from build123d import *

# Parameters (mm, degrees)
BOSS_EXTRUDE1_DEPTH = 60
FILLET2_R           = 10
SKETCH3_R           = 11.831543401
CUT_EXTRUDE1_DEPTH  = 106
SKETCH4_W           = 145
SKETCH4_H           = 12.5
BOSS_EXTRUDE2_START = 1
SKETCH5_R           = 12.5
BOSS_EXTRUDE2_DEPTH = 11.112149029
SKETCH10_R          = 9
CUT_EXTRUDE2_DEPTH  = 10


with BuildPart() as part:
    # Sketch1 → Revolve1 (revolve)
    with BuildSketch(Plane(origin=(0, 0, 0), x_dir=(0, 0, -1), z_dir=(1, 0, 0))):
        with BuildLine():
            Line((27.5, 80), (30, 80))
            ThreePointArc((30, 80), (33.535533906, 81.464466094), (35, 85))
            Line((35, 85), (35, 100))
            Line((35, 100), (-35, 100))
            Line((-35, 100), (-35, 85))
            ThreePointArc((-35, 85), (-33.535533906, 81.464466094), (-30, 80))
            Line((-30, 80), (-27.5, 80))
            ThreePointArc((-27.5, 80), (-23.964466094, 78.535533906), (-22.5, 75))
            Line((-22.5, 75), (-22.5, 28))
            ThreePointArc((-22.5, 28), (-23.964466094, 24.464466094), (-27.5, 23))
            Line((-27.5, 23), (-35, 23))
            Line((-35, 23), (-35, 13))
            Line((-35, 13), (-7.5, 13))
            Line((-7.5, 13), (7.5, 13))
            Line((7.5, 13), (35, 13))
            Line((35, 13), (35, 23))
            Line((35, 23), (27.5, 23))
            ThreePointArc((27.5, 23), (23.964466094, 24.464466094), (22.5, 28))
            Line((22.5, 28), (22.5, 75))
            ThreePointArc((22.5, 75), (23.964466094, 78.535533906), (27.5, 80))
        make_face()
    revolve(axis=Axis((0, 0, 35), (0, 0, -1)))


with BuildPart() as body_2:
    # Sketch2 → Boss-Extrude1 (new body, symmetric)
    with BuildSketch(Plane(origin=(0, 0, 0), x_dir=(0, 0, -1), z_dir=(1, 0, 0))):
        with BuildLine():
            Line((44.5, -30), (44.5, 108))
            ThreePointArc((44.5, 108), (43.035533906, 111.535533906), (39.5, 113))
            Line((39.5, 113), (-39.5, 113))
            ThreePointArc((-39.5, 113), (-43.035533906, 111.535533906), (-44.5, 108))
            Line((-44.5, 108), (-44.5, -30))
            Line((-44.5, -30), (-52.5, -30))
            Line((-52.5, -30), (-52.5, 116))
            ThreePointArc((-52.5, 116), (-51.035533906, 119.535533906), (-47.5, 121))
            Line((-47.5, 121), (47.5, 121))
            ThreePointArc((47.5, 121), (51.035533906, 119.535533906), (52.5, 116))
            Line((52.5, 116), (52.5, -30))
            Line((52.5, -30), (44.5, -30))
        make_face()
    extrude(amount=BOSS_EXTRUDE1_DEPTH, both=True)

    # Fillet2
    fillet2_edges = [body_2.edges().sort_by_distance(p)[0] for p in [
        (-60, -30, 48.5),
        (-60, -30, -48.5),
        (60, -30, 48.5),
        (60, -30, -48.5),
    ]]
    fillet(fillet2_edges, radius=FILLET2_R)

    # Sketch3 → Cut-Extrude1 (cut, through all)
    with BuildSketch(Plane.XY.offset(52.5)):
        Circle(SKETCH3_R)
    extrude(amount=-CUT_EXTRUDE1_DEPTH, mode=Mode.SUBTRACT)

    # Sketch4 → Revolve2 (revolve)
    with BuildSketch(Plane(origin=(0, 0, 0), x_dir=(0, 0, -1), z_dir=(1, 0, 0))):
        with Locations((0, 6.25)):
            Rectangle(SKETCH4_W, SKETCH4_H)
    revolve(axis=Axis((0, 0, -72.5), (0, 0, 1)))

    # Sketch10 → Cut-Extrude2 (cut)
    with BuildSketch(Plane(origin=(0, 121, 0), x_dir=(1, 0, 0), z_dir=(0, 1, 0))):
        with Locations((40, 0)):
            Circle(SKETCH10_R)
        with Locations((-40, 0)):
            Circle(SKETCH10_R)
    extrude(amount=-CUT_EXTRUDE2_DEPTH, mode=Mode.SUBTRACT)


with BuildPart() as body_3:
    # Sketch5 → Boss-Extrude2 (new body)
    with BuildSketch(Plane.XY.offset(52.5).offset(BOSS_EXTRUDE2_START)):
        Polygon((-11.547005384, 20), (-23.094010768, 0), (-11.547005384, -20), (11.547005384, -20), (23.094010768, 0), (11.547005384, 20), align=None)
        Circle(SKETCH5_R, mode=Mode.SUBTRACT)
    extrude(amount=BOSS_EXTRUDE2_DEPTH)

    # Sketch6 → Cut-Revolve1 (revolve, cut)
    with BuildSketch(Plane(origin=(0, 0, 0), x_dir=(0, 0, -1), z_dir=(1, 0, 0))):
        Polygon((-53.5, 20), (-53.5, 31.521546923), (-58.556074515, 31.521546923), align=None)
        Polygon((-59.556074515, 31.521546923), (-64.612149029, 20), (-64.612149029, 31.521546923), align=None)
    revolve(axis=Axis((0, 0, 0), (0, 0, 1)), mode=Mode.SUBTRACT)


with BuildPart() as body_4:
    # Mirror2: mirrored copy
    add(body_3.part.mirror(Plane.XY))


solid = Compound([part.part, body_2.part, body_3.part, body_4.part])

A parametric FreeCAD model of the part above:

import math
import FreeCAD as App
import Part
import Sketcher
from FreeCAD import Vector
Q = App.Units.Quantity


def edges_at(feature, points):
    """Names of the edges that pass closest to the given points."""
    edges = feature.Shape.Edges
    near = lambda p: min(range(len(edges)), key=lambda i: edges[i].distToShape(Part.Vertex(*p))[0])
    return sorted({f"Edge{near(p) + 1}" for p in points})

doc = App.newDocument("Part")
params = doc.addObject("Spreadsheet::Sheet", "Params")
for row, (alias, value) in enumerate([
    ("sketch1_radius", "5 mm"),
    ("sketch1_width", "15 mm"),
    ("sketch1_width2", "47 mm"),
    ("sketch1_width3", "10 mm"),
    ("sketch1_height", "70 mm"),
    ("revolution_angle", "360 deg"),
    ("sketch2_radius", "5 mm"),
    ("sketch2_width", "138 mm"),
    ("sketch2_width2", "146 mm"),
    ("sketch2_height", "8 mm"),
    ("sketch2_height2", "95 mm"),
    ("pad1_length", "120 mm"),
    ("fillet_radius", "10 mm"),
    ("sketch4_height", "145 mm"),
    ("sketch4_width", "12.5 mm"),
    ("revolution2_angle", "360 deg"),
    ("sketch5_diameter", "18 mm"),
    ("pocket2_length", "10 mm"),
    ("sketch6_diameter", "25 mm"),
    ("pad2_length", "11.112149 mm"),
    ("groove_angle", "360 deg"),
], start=1):
    params.set(f"A{row}", alias)
    params.set(f"B{row}", "=" + value)
    params.setAlias(f"B{row}", alias)

body = doc.addObject("PartDesign::Body", "Body")

# Sketch on YZ plane
sketch1 = doc.addObject("Sketcher::SketchObject", "Sketch")
body.addObject(sketch1)
sketch1.AttachmentSupport = (doc.YZ_Plane, [""])
sketch1.MapMode = "FlatFace"
sketch1.addGeometry(Part.LineSegment(Vector(80, -27.5, 0), Vector(80, -30, 0)), False)
sketch1.addGeometry(Part.ArcOfCircle(Part.Circle(Vector(85, -30, 0), Vector(0, 0, 1), 5), math.radians(180), math.radians(270)), False)
sketch1.addGeometry(Part.LineSegment(Vector(85, -35, 0), Vector(100, -35, 0)), False)
sketch1.addGeometry(Part.LineSegment(Vector(100, -35, 0), Vector(100, 35, 0)), False)
sketch1.addGeometry(Part.LineSegment(Vector(100, 35, 0), Vector(85, 35, 0)), False)
sketch1.addGeometry(Part.ArcOfCircle(Part.Circle(Vector(85, 30, 0), Vector(0, 0, 1), 5), math.radians(90), math.radians(180)), False)
sketch1.addGeometry(Part.LineSegment(Vector(80, 30, 0), Vector(80, 27.5, 0)), False)
sketch1.addGeometry(Part.ArcOfCircle(Part.Circle(Vector(75, 27.5, 0), Vector(0, 0, 1), 5), math.radians(-90), math.radians(0)), False)
sketch1.addGeometry(Part.LineSegment(Vector(75, 22.5, 0), Vector(28, 22.5, 0)), False)
sketch1.addGeometry(Part.ArcOfCircle(Part.Circle(Vector(28, 27.5, 0), Vector(0, 0, 1), 5), math.radians(180), math.radians(270)), False)
sketch1.addGeometry(Part.LineSegment(Vector(23, 27.5, 0), Vector(23, 35, 0)), False)
sketch1.addGeometry(Part.LineSegment(Vector(23, 35, 0), Vector(13, 35, 0)), False)
sketch1.addGeometry(Part.LineSegment(Vector(13, 35, 0), Vector(13, -35, 0)), False)
sketch1.addGeometry(Part.LineSegment(Vector(13, -35, 0), Vector(23, -35, 0)), False)
sketch1.addGeometry(Part.LineSegment(Vector(23, -35, 0), Vector(23, -27.5, 0)), False)
sketch1.addGeometry(Part.ArcOfCircle(Part.Circle(Vector(28, -27.5, 0), Vector(0, 0, 1), 5), math.radians(90), math.radians(180)), False)
sketch1.addGeometry(Part.LineSegment(Vector(28, -22.5, 0), Vector(75, -22.5, 0)), False)
sketch1.addGeometry(Part.ArcOfCircle(Part.Circle(Vector(75, -27.5, 0), Vector(0, 0, 1), 5), math.radians(0), math.radians(90)), False)
sketch1.addConstraint(Sketcher.Constraint("Tangent", 0, 2, 1, 1))
sketch1.addConstraint(Sketcher.Constraint("Tangent", 1, 2, 2, 1))
sketch1.addConstraint(Sketcher.Constraint("Coincident", 2, 2, 3, 1))
sketch1.addConstraint(Sketcher.Constraint("Coincident", 3, 2, 4, 1))
sketch1.addConstraint(Sketcher.Constraint("Tangent", 4, 2, 5, 1))
sketch1.addConstraint(Sketcher.Constraint("Tangent", 5, 2, 6, 1))
sketch1.addConstraint(Sketcher.Constraint("Tangent", 6, 2, 7, 2))
sketch1.addConstraint(Sketcher.Constraint("Tangent", 7, 1, 8, 1))
sketch1.addConstraint(Sketcher.Constraint("Tangent", 8, 2, 9, 2))
sketch1.addConstraint(Sketcher.Constraint("Tangent", 9, 1, 10, 1))
sketch1.addConstraint(Sketcher.Constraint("Coincident", 10, 2, 11, 1))
sketch1.addConstraint(Sketcher.Constraint("Coincident", 11, 2, 12, 1))
sketch1.addConstraint(Sketcher.Constraint("Coincident", 12, 2, 13, 1))
sketch1.addConstraint(Sketcher.Constraint("Coincident", 13, 2, 14, 1))
sketch1.addConstraint(Sketcher.Constraint("Tangent", 14, 2, 15, 2))
sketch1.addConstraint(Sketcher.Constraint("Tangent", 15, 1, 16, 1))
sketch1.addConstraint(Sketcher.Constraint("Tangent", 16, 2, 17, 2))
sketch1.addConstraint(Sketcher.Constraint("Tangent", 17, 1, 0, 1))
sketch1.addConstraint(Sketcher.Constraint("Vertical", 0))
sketch1.addConstraint(Sketcher.Constraint("Horizontal", 2))
sketch1.addConstraint(Sketcher.Constraint("Vertical", 3))
sketch1.addConstraint(Sketcher.Constraint("Horizontal", 4))
sketch1.addConstraint(Sketcher.Constraint("Vertical", 6))
sketch1.addConstraint(Sketcher.Constraint("Horizontal", 8))
sketch1.addConstraint(Sketcher.Constraint("Vertical", 10))
sketch1.addConstraint(Sketcher.Constraint("Horizontal", 11))
sketch1.addConstraint(Sketcher.Constraint("Vertical", 12))
sketch1.addConstraint(Sketcher.Constraint("Horizontal", 13))
sketch1.addConstraint(Sketcher.Constraint("Vertical", 14))
sketch1.addConstraint(Sketcher.Constraint("Horizontal", 16))
sketch1.addConstraint(Sketcher.Constraint("Equal", 1, 5))
sketch1.addConstraint(Sketcher.Constraint("Equal", 5, 7))
sketch1.addConstraint(Sketcher.Constraint("Equal", 7, 9))
sketch1.addConstraint(Sketcher.Constraint("Equal", 9, 15))
sketch1.addConstraint(Sketcher.Constraint("Equal", 15, 17))
sketch1.addConstraint(Sketcher.Constraint("Symmetric", 1, 3, 5, 3, -1))
sketch1.addConstraint(Sketcher.Constraint("Symmetric", 9, 3, 15, 3, -1))
sketch1.addConstraint(Sketcher.Constraint("Horizontal", 4, 2, 10, 2))
sketch1.addConstraint(Sketcher.Constraint("Horizontal", 2, 2, 12, 2))
sketch1.addConstraint(Sketcher.Constraint("Radius", 1, Q("5 mm")))
sketch1.addConstraint(Sketcher.Constraint("DistanceX", 2, 1, 2, 2, Q("15 mm")))
sketch1.addConstraint(Sketcher.Constraint("DistanceX", 8, 2, 8, 1, Q("47 mm")))
sketch1.addConstraint(Sketcher.Constraint("DistanceX", 11, 2, 11, 1, Q("10 mm")))
sketch1.addConstraint(Sketcher.Constraint("DistanceY", 3, 1, 3, 2, Q("70 mm")))
sketch1.addConstraint(Sketcher.Constraint("DistanceY", 0, 2, 0, 1, Q("2.5 mm")))
sketch1.addConstraint(Sketcher.Constraint("DistanceX", -1, 1, 1, 3, Q("85 mm")))
sketch1.setExpression("Constraints[39]", "Params.sketch1_radius")
sketch1.setExpression("Constraints[40]", "Params.sketch1_width")
sketch1.setExpression("Constraints[41]", "Params.sketch1_width2")
sketch1.setExpression("Constraints[42]", "Params.sketch1_width3")
sketch1.setExpression("Constraints[43]", "Params.sketch1_height")
revolution = doc.addObject("PartDesign::Revolution", "Revolution")
body.addObject(revolution)
revolution.Profile = sketch1
revolution.ReferenceAxis = (sketch1, ["V_Axis"])
revolution.setExpression("Angle", "Params.revolution_angle")
body2 = doc.addObject("PartDesign::Body", "Body001")

# Sketch on YZ plane
sketch2 = doc.addObject("Sketcher::SketchObject", "Sketch001")
body2.addObject(sketch2)
sketch2.AttachmentSupport = (doc.getObject("YZ_Plane001"), [""])
sketch2.MapMode = "FlatFace"
sketch2.addGeometry(Part.LineSegment(Vector(108, -44, 0), Vector(-30, -44, 0)), False)
sketch2.addGeometry(Part.LineSegment(Vector(-30, -44, 0), Vector(-30, -52, 0)), False)
sketch2.addGeometry(Part.LineSegment(Vector(-30, -52, 0), Vector(116, -52, 0)), False)
sketch2.addGeometry(Part.ArcOfCircle(Part.Circle(Vector(116, -48, 0), Vector(0, 0, 1), 5), math.radians(-90), math.radians(0)), False)
sketch2.addGeometry(Part.LineSegment(Vector(121, -48, 0), Vector(121, 48, 0)), False)
sketch2.addGeometry(Part.ArcOfCircle(Part.Circle(Vector(116, 48, 0), Vector(0, 0, 1), 5), math.radians(0), math.radians(90)), False)
sketch2.addGeometry(Part.LineSegment(Vector(116, 52, 0), Vector(-30, 52, 0)), False)
sketch2.addGeometry(Part.LineSegment(Vector(-30, 52, 0), Vector(-30, 44, 0)), False)
sketch2.addGeometry(Part.LineSegment(Vector(-30, 44, 0), Vector(108, 44, 0)), False)
sketch2.addGeometry(Part.ArcOfCircle(Part.Circle(Vector(108, 40, 0), Vector(0, 0, 1), 5), math.radians(0), math.radians(90)), False)
sketch2.addGeometry(Part.LineSegment(Vector(113, 40, 0), Vector(113, -40, 0)), False)
sketch2.addGeometry(Part.ArcOfCircle(Part.Circle(Vector(108, -40, 0), Vector(0, 0, 1), 5), math.radians(-90), math.radians(0)), False)
sketch2.addConstraint(Sketcher.Constraint("Coincident", 0, 2, 1, 1))
sketch2.addConstraint(Sketcher.Constraint("Coincident", 1, 2, 2, 1))
sketch2.addConstraint(Sketcher.Constraint("Tangent", 2, 2, 3, 1))
sketch2.addConstraint(Sketcher.Constraint("Tangent", 3, 2, 4, 1))
sketch2.addConstraint(Sketcher.Constraint("Tangent", 4, 2, 5, 1))
sketch2.addConstraint(Sketcher.Constraint("Tangent", 5, 2, 6, 1))
sketch2.addConstraint(Sketcher.Constraint("Coincident", 6, 2, 7, 1))
sketch2.addConstraint(Sketcher.Constraint("Coincident", 7, 2, 8, 1))
sketch2.addConstraint(Sketcher.Constraint("Tangent", 8, 2, 9, 2))
sketch2.addConstraint(Sketcher.Constraint("Tangent", 9, 1, 10, 1))
sketch2.addConstraint(Sketcher.Constraint("Tangent", 10, 2, 11, 2))
sketch2.addConstraint(Sketcher.Constraint("Tangent", 11, 1, 0, 1))
sketch2.addConstraint(Sketcher.Constraint("Horizontal", 0))
sketch2.addConstraint(Sketcher.Constraint("Vertical", 1))
sketch2.addConstraint(Sketcher.Constraint("Horizontal", 2))
sketch2.addConstraint(Sketcher.Constraint("Vertical", 4))
sketch2.addConstraint(Sketcher.Constraint("Horizontal", 6))
sketch2.addConstraint(Sketcher.Constraint("Vertical", 7))
sketch2.addConstraint(Sketcher.Constraint("Horizontal", 8))
sketch2.addConstraint(Sketcher.Constraint("Vertical", 10))
sketch2.addConstraint(Sketcher.Constraint("Equal", 3, 5))
sketch2.addConstraint(Sketcher.Constraint("Equal", 5, 9))
sketch2.addConstraint(Sketcher.Constraint("Equal", 9, 11))
sketch2.addConstraint(Sketcher.Constraint("Symmetric", 1, 2, 6, 2, -1))
sketch2.addConstraint(Sketcher.Constraint("Equal", 1, 7))
sketch2.addConstraint(Sketcher.Constraint("Radius", 3, Q("5 mm")))
sketch2.addConstraint(Sketcher.Constraint("DistanceX", 0, 2, 0, 1, Q("138 mm")))
sketch2.addConstraint(Sketcher.Constraint("DistanceX", 2, 1, 2, 2, Q("146 mm")))
sketch2.addConstraint(Sketcher.Constraint("DistanceY", 1, 2, 1, 1, Q("8 mm")))
sketch2.addConstraint(Sketcher.Constraint("DistanceY", 4, 1, 4, 2, Q("95 mm")))
sketch2.addConstraint(Sketcher.Constraint("DistanceX", -1, 1, 3, 3, Q("116 mm")))
sketch2.setExpression("Constraints[25]", "Params.sketch2_radius")
sketch2.setExpression("Constraints[26]", "Params.sketch2_width")
sketch2.setExpression("Constraints[27]", "Params.sketch2_width2")
sketch2.setExpression("Constraints[28]", "Params.sketch2_height")
sketch2.setExpression("Constraints[29]", "Params.sketch2_height2")
pad1 = doc.addObject("PartDesign::Pad", "Pad")
body2.addObject(pad1)
pad1.Profile = sketch2
pad1.setExpression("Length", "Params.pad1_length")
pad1.Midplane = True
doc.recompute()

fillet = doc.addObject("PartDesign::Fillet", "Fillet")
body2.addObject(fillet)
fillet.Base = (pad1, edges_at(pad1, [
    (-60, -30, 48.5),
    (-60, -30, -48.5),
    (60, -30, 48.5),
    (60, -30, -48.5),
]))
fillet.setExpression("Radius", "Params.fillet_radius")

# Sketch on XY plane
sketch3 = doc.addObject("Sketcher::SketchObject", "Sketch002")
body2.addObject(sketch3)
sketch3.AttachmentSupport = (doc.getObject("XY_Plane001"), [""])
sketch3.MapMode = "FlatFace"
sketch3.AttachmentOffset = App.Placement(Vector(0, 0, 52.5), App.Rotation())
sketch3.addGeometry(Part.Circle(Vector(0, 0, 0), Vector(0, 0, 1), 12), False)
sketch3.addConstraint(Sketcher.Constraint("Coincident", 0, 3, -1, 1))
sketch3.addConstraint(Sketcher.Constraint("Diameter", 0, Q("23.663087 mm")))
pocket1 = doc.addObject("PartDesign::Pocket", "Pocket")
body2.addObject(pocket1)
pocket1.Profile = sketch3
pocket1.Type = "ThroughAll"

# Sketch on YZ plane
sketch4 = doc.addObject("Sketcher::SketchObject", "Sketch003")
body2.addObject(sketch4)
sketch4.AttachmentSupport = (doc.getObject("YZ_Plane001"), [""])
sketch4.MapMode = "FlatFace"
sketch4.addGeometry(Part.LineSegment(Vector(12, 72, 0), Vector(0, 72, 0)), False)
sketch4.addGeometry(Part.LineSegment(Vector(0, 72, 0), Vector(0, -72, 0)), False)
sketch4.addGeometry(Part.LineSegment(Vector(0, -72, 0), Vector(12, -72, 0)), False)
sketch4.addGeometry(Part.LineSegment(Vector(12, -72, 0), Vector(12, 72, 0)), False)
sketch4.addConstraint(Sketcher.Constraint("Coincident", 0, 2, 1, 1))
sketch4.addConstraint(Sketcher.Constraint("Coincident", 1, 2, 2, 1))
sketch4.addConstraint(Sketcher.Constraint("Coincident", 2, 2, 3, 1))
sketch4.addConstraint(Sketcher.Constraint("Coincident", 3, 2, 0, 1))
sketch4.addConstraint(Sketcher.Constraint("Horizontal", 0))
sketch4.addConstraint(Sketcher.Constraint("Vertical", 1))
sketch4.addConstraint(Sketcher.Constraint("Horizontal", 2))
sketch4.addConstraint(Sketcher.Constraint("Vertical", 3))
sketch4.addConstraint(Sketcher.Constraint("Symmetric", 0, 2, 1, 2, -1, 1))
sketch4.addConstraint(Sketcher.Constraint("DistanceY", 1, 2, 1, 1, Q("145 mm")))
sketch4.addConstraint(Sketcher.Constraint("DistanceX", 0, 2, 0, 1, Q("12.5 mm")))
sketch4.setExpression("Constraints[9]", "Params.sketch4_height")
sketch4.setExpression("Constraints[10]", "Params.sketch4_width")
revolution2 = doc.addObject("PartDesign::Revolution", "Revolution001")
body2.addObject(revolution2)
revolution2.Profile = sketch4
revolution2.ReferenceAxis = (sketch4, ["V_Axis"])
revolution2.setExpression("Angle", "Params.revolution2_angle")

# Sketch on XZ plane
sketch5 = doc.addObject("Sketcher::SketchObject", "Sketch004")
body2.addObject(sketch5)
sketch5.AttachmentSupport = (doc.getObject("XZ_Plane001"), [""])
sketch5.MapMode = "FlatFace"
sketch5.AttachmentOffset = App.Placement(Vector(0, 0, -121), App.Rotation())
sketch5.addGeometry(Part.Circle(Vector(40, 0, 0), Vector(0, 0, 1), 9), False)
sketch5.addGeometry(Part.Circle(Vector(-40, 0, 0), Vector(0, 0, 1), 9), False)
sketch5.addConstraint(Sketcher.Constraint("Equal", 0, 1))
sketch5.addConstraint(Sketcher.Constraint("Symmetric", 0, 3, 1, 3, -1, 1))
sketch5.addConstraint(Sketcher.Constraint("PointOnObject", 0, 3, -1))
sketch5.addConstraint(Sketcher.Constraint("Diameter", 0, Q("18 mm")))
sketch5.addConstraint(Sketcher.Constraint("DistanceX", -1, 1, 0, 3, Q("40 mm")))
sketch5.setExpression("Constraints[3]", "Params.sketch5_diameter")
pocket2 = doc.addObject("PartDesign::Pocket", "Pocket001")
body2.addObject(pocket2)
pocket2.Profile = sketch5
pocket2.setExpression("Length", "Params.pocket2_length")
pocket2.Reversed = True
body3 = doc.addObject("PartDesign::Body", "Body002")

# Sketch on XY plane
sketch6 = doc.addObject("Sketcher::SketchObject", "Sketch005")
body3.addObject(sketch6)
sketch6.AttachmentSupport = (doc.getObject("XY_Plane002"), [""])
sketch6.MapMode = "FlatFace"
sketch6.AttachmentOffset = App.Placement(Vector(0, 0, 53.5), App.Rotation())
sketch6.addGeometry(Part.LineSegment(Vector(-12, 20, 0), Vector(-23, 0, 0)), False)
sketch6.addGeometry(Part.LineSegment(Vector(-23, 0, 0), Vector(-12, -20, 0)), False)
sketch6.addGeometry(Part.LineSegment(Vector(-12, -20, 0), Vector(12, -20, 0)), False)
sketch6.addGeometry(Part.LineSegment(Vector(12, -20, 0), Vector(23, 0, 0)), False)
sketch6.addGeometry(Part.LineSegment(Vector(23, 0, 0), Vector(12, 20, 0)), False)
sketch6.addGeometry(Part.LineSegment(Vector(12, 20, 0), Vector(-12, 20, 0)), False)
sketch6.addGeometry(Part.Circle(Vector(0, 0, 0), Vector(0, 0, 1), 12), False)
sketch6.addConstraint(Sketcher.Constraint("Coincident", 0, 2, 1, 1))
sketch6.addConstraint(Sketcher.Constraint("Coincident", 1, 2, 2, 1))
sketch6.addConstraint(Sketcher.Constraint("Coincident", 2, 2, 3, 1))
sketch6.addConstraint(Sketcher.Constraint("Coincident", 3, 2, 4, 1))
sketch6.addConstraint(Sketcher.Constraint("Coincident", 4, 2, 5, 1))
sketch6.addConstraint(Sketcher.Constraint("Coincident", 5, 2, 0, 1))
sketch6.addConstraint(Sketcher.Constraint("Horizontal", 2))
sketch6.addConstraint(Sketcher.Constraint("Horizontal", 5))
sketch6.addConstraint(Sketcher.Constraint("Coincident", 6, 3, -1, 1))
sketch6.addConstraint(Sketcher.Constraint("Symmetric", 0, 2, 3, 2, -1, 1))
sketch6.addConstraint(Sketcher.Constraint("Symmetric", 1, 2, 4, 2, -1, 1))
sketch6.addConstraint(Sketcher.Constraint("PointOnObject", 0, 2, -1))
sketch6.addConstraint(Sketcher.Constraint("Parallel", 0, 3))
sketch6.addConstraint(Sketcher.Constraint("Vertical", 2, 2, 4, 2))
sketch6.addConstraint(Sketcher.Constraint("Diameter", 6, Q("25 mm")))
sketch6.addConstraint(Sketcher.Constraint("Angle", 0, Q("-120 deg")))
sketch6.addConstraint(Sketcher.Constraint("DistanceY", 1, 2, -1, 1, Q("20 mm")))
sketch6.addConstraint(Sketcher.Constraint("DistanceX", 2, 1, 2, 2, Q("23.094011 mm")))
sketch6.setExpression("Constraints[14]", "Params.sketch6_diameter")
pad2 = doc.addObject("PartDesign::Pad", "Pad001")
body3.addObject(pad2)
pad2.Profile = sketch6
pad2.setExpression("Length", "Params.pad2_length")

# Sketch on YZ plane
sketch7 = doc.addObject("Sketcher::SketchObject", "Sketch006")
body3.addObject(sketch7)
sketch7.AttachmentSupport = (doc.getObject("YZ_Plane002"), [""])
sketch7.MapMode = "FlatFace"
sketch7.addGeometry(Part.LineSegment(Vector(20, 54, 0), Vector(32, 54, 0)), False)
sketch7.addGeometry(Part.LineSegment(Vector(32, 54, 0), Vector(32, 59, 0)), False)
sketch7.addGeometry(Part.LineSegment(Vector(32, 59, 0), Vector(20, 54, 0)), False)
sketch7.addGeometry(Part.LineSegment(Vector(20, 65, 0), Vector(32, 60, 0)), False)
sketch7.addGeometry(Part.LineSegment(Vector(32, 60, 0), Vector(32, 65, 0)), False)
sketch7.addGeometry(Part.LineSegment(Vector(32, 65, 0), Vector(20, 65, 0)), False)
sketch7.addConstraint(Sketcher.Constraint("Coincident", 0, 2, 1, 1))
sketch7.addConstraint(Sketcher.Constraint("Coincident", 1, 2, 2, 1))
sketch7.addConstraint(Sketcher.Constraint("Coincident", 2, 2, 0, 1))
sketch7.addConstraint(Sketcher.Constraint("Coincident", 3, 2, 4, 1))
sketch7.addConstraint(Sketcher.Constraint("Coincident", 4, 2, 5, 1))
sketch7.addConstraint(Sketcher.Constraint("Coincident", 5, 2, 3, 1))
sketch7.addConstraint(Sketcher.Constraint("Horizontal", 0))
sketch7.addConstraint(Sketcher.Constraint("Vertical", 1))
sketch7.addConstraint(Sketcher.Constraint("Vertical", 4))
sketch7.addConstraint(Sketcher.Constraint("Horizontal", 5))
sketch7.addConstraint(Sketcher.Constraint("Vertical", 1, 2, 3, 2))
sketch7.addConstraint(Sketcher.Constraint("Vertical", 2, 2, 5, 2))
sketch7.addConstraint(Sketcher.Constraint("Equal", 1, 4))
sketch7.addConstraint(Sketcher.Constraint("DistanceX", -1, 1, 2, 2, Q("20 mm")))
sketch7.addConstraint(Sketcher.Constraint("DistanceY", 1, 2, 3, 2, Q("1 mm")))
sketch7.addConstraint(Sketcher.Constraint("DistanceY", -1, 1, 0, 2, Q("53.5 mm")))
sketch7.addConstraint(Sketcher.Constraint("DistanceX", 0, 1, 0, 2, Q("11.521547 mm")))
sketch7.addConstraint(Sketcher.Constraint("DistanceY", 1, 1, 1, 2, Q("5.056075 mm")))
groove = doc.addObject("PartDesign::Groove", "Groove")
body3.addObject(groove)
groove.Profile = sketch7
groove.ReferenceAxis = (sketch7, ["V_Axis"])
groove.setExpression("Angle", "Params.groove_angle")
body4 = doc.addObject("PartDesign::Body", "Body003")
doc.recompute()

mirroring = doc.addObject("Part::Mirroring", "Mirroring")
mirroring.Source = body3
mirroring.Base = Vector(0, 0, 0)
mirroring.Normal = Vector(0, 0, 1)
body4.BaseFeature = mirroring
doc.recompute()
mirroring.Visibility = False

doc.recompute()
